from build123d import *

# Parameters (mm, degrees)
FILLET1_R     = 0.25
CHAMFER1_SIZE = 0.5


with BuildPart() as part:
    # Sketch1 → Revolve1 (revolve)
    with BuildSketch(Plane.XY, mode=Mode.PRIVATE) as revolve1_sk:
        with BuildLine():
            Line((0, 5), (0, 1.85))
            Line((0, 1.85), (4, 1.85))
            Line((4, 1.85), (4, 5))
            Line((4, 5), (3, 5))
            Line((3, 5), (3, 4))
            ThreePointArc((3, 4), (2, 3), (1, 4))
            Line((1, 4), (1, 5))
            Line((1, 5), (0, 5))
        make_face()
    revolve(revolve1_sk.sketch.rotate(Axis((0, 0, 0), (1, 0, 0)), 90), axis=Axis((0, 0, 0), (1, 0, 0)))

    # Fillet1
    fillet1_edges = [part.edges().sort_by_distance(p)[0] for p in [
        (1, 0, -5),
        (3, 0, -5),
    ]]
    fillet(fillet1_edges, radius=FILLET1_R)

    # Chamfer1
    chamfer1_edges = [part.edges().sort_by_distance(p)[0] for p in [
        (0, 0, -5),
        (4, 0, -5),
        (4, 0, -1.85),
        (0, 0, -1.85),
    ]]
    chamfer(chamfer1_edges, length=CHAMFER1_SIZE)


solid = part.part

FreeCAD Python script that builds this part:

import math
import FreeCAD as App
import Part
import Sketcher
from FreeCAD import Vector


def edges_at(feature, points):
    """Names of the edges that pass closest to the given points."""
    edges = feature.Shape.Edges
    near = lambda p: min(range(len(edges)), key=lambda i: edges[i].distToShape(Part.Vertex(*p))[0])
    return sorted({f"Edge{near(p) + 1}" for p in points})

doc = App.newDocument("Part")
params = doc.addObject("Spreadsheet::Sheet", "Params")
for row, (alias, value) in enumerate([
    ("sketch1_radius", "1 mm"),
    ("sketch1_width", "4 mm"),
    ("sketch1_height", "3.15 mm"),
    ("revolution_angle", "360 deg"),
    ("fillet_radius", "0.25 mm"),
    ("chamfer_size", "0.5 mm"),
], start=1):
    params.set(f"A{row}", alias)
    params.set(f"B{row}", "=" + value)
    params.setAlias(f"B{row}", alias)

body = doc.addObject("PartDesign::Body", "Body")

# Sketch on XY plane
sketch1 = body.newObject("Sketcher::SketchObject", "Sketch")
sketch1.AttachmentSupport = (doc.getObject("XY_Plane"), [""])
sketch1.MapMode = "FlatFace"
sketch1.addGeometry(Part.LineSegment(Vector(0, 5, 0), Vector(0, 1.9, 0)), False)
sketch1.addGeometry(Part.LineSegment(Vector(0, 1.9, 0), Vector(4, 1.9, 0)), False)
sketch1.addGeometry(Part.LineSegment(Vector(4, 1.9, 0), Vector(4, 5, 0)), False)
sketch1.addGeometry(Part.LineSegment(Vector(4, 5, 0), Vector(3, 5, 0)), False)
sketch1.addGeometry(Part.LineSegment(Vector(3, 5, 0), Vector(3, 4, 0)), False)
sketch1.addGeometry(Part.ArcOfCircle(Part.Circle(Vector(2, 4, 0), Vector(0, 0, 1), 1), math.radians(180), math.radians(360)), False)
sketch1.addGeometry(Part.LineSegment(Vector(1, 4, 0), Vector(1, 5, 0)), False)
sketch1.addGeometry(Part.LineSegment(Vector(1, 5, 0), Vector(0, 5, 0)), False)
sketch1.addConstraint(Sketcher.Constraint("Coincident", 0, 2, 1, 1))
sketch1.addConstraint(Sketcher.Constraint("Coincident", 1, 2, 2, 1))
sketch1.addConstraint(Sketcher.Constraint("Coincident", 2, 2, 3, 1))
sketch1.addConstraint(Sketcher.Constraint("Coincident", 3, 2, 4, 1))
sketch1.addConstraint(Sketcher.Constraint("Tangent", 4, 2, 5, 2))
sketch1.addConstraint(Sketcher.Constraint("Tangent", 5, 1, 6, 1))
sketch1.addConstraint(Sketcher.Constraint("Coincident", 6, 2, 7, 1))
sketch1.addConstraint(Sketcher.Constraint("Coincident", 7, 2, 0, 1))
sketch1.addConstraint(Sketcher.Constraint("Vertical", 0))
sketch1.addConstraint(Sketcher.Constraint("Horizontal", 1))
sketch1.addConstraint(Sketcher.Constraint("Vertical", 2))
sketch1.addConstraint(Sketcher.Constraint("Horizontal", 3))
sketch1.addConstraint(Sketcher.Constraint("Vertical", 4))
sketch1.addConstraint(Sketcher.Constraint("Vertical", 6))
sketch1.addConstraint(Sketcher.Constraint("Horizontal", 7))
sketch1.addConstraint(Sketcher.Constraint("PointOnObject", 0, 2, -2))
sketch1.addConstraint(Sketcher.Constraint("Horizontal", 3, 2, 6, 2))
sketch1.addConstraint(Sketcher.Constraint("Equal", 3, 7))
sketch1.addConstraint(Sketcher.Constraint("Equal", 7, 4))
sketch1.addConstraint(Sketcher.Constraint("Radius", 5, 1.0))
sketch1.addConstraint(Sketcher.Constraint("DistanceX", 1, 1, 1, 2, 4.0))
sketch1.addConstraint(Sketcher.Constraint("DistanceY", -1, 1, 5, 3, 4.0))
sketch1.addConstraint(Sketcher.Constraint("DistanceY", 0, 2, 0, 1, 3.15))
sketch1.setExpression("Constraints[19]", "Params.sketch1_radius")
sketch1.setExpression("Constraints[20]", "Params.sketch1_width")
sketch1.setExpression("Constraints[22]", "Params.sketch1_height")
revolution = body.newObject("PartDesign::Revolution", "Revolution")
revolution.Profile = sketch1
revolution.ReferenceAxis = (sketch1, ["H_Axis"])
revolution.setExpression("Angle", "Params.revolution_angle")
doc.recompute()

fillet = body.newObject("PartDesign::Fillet", "Fillet")
fillet.Base = (revolution, edges_at(revolution, [(1, 0, -5), (3, 0, -5)]))
fillet.setExpression("Radius", "Params.fillet_radius")
doc.recompute()

chamfer = body.newObject("PartDesign::Chamfer", "Chamfer")
chamfer.Base = (fillet, edges_at(fillet, [
    (0, 0, -5),
    (4, 0, -5),
    (4, 0, -1.85),
    (0, 0, -1.85),
]))
chamfer.setExpression("Size", "Params.chamfer_size")

doc.recompute()
